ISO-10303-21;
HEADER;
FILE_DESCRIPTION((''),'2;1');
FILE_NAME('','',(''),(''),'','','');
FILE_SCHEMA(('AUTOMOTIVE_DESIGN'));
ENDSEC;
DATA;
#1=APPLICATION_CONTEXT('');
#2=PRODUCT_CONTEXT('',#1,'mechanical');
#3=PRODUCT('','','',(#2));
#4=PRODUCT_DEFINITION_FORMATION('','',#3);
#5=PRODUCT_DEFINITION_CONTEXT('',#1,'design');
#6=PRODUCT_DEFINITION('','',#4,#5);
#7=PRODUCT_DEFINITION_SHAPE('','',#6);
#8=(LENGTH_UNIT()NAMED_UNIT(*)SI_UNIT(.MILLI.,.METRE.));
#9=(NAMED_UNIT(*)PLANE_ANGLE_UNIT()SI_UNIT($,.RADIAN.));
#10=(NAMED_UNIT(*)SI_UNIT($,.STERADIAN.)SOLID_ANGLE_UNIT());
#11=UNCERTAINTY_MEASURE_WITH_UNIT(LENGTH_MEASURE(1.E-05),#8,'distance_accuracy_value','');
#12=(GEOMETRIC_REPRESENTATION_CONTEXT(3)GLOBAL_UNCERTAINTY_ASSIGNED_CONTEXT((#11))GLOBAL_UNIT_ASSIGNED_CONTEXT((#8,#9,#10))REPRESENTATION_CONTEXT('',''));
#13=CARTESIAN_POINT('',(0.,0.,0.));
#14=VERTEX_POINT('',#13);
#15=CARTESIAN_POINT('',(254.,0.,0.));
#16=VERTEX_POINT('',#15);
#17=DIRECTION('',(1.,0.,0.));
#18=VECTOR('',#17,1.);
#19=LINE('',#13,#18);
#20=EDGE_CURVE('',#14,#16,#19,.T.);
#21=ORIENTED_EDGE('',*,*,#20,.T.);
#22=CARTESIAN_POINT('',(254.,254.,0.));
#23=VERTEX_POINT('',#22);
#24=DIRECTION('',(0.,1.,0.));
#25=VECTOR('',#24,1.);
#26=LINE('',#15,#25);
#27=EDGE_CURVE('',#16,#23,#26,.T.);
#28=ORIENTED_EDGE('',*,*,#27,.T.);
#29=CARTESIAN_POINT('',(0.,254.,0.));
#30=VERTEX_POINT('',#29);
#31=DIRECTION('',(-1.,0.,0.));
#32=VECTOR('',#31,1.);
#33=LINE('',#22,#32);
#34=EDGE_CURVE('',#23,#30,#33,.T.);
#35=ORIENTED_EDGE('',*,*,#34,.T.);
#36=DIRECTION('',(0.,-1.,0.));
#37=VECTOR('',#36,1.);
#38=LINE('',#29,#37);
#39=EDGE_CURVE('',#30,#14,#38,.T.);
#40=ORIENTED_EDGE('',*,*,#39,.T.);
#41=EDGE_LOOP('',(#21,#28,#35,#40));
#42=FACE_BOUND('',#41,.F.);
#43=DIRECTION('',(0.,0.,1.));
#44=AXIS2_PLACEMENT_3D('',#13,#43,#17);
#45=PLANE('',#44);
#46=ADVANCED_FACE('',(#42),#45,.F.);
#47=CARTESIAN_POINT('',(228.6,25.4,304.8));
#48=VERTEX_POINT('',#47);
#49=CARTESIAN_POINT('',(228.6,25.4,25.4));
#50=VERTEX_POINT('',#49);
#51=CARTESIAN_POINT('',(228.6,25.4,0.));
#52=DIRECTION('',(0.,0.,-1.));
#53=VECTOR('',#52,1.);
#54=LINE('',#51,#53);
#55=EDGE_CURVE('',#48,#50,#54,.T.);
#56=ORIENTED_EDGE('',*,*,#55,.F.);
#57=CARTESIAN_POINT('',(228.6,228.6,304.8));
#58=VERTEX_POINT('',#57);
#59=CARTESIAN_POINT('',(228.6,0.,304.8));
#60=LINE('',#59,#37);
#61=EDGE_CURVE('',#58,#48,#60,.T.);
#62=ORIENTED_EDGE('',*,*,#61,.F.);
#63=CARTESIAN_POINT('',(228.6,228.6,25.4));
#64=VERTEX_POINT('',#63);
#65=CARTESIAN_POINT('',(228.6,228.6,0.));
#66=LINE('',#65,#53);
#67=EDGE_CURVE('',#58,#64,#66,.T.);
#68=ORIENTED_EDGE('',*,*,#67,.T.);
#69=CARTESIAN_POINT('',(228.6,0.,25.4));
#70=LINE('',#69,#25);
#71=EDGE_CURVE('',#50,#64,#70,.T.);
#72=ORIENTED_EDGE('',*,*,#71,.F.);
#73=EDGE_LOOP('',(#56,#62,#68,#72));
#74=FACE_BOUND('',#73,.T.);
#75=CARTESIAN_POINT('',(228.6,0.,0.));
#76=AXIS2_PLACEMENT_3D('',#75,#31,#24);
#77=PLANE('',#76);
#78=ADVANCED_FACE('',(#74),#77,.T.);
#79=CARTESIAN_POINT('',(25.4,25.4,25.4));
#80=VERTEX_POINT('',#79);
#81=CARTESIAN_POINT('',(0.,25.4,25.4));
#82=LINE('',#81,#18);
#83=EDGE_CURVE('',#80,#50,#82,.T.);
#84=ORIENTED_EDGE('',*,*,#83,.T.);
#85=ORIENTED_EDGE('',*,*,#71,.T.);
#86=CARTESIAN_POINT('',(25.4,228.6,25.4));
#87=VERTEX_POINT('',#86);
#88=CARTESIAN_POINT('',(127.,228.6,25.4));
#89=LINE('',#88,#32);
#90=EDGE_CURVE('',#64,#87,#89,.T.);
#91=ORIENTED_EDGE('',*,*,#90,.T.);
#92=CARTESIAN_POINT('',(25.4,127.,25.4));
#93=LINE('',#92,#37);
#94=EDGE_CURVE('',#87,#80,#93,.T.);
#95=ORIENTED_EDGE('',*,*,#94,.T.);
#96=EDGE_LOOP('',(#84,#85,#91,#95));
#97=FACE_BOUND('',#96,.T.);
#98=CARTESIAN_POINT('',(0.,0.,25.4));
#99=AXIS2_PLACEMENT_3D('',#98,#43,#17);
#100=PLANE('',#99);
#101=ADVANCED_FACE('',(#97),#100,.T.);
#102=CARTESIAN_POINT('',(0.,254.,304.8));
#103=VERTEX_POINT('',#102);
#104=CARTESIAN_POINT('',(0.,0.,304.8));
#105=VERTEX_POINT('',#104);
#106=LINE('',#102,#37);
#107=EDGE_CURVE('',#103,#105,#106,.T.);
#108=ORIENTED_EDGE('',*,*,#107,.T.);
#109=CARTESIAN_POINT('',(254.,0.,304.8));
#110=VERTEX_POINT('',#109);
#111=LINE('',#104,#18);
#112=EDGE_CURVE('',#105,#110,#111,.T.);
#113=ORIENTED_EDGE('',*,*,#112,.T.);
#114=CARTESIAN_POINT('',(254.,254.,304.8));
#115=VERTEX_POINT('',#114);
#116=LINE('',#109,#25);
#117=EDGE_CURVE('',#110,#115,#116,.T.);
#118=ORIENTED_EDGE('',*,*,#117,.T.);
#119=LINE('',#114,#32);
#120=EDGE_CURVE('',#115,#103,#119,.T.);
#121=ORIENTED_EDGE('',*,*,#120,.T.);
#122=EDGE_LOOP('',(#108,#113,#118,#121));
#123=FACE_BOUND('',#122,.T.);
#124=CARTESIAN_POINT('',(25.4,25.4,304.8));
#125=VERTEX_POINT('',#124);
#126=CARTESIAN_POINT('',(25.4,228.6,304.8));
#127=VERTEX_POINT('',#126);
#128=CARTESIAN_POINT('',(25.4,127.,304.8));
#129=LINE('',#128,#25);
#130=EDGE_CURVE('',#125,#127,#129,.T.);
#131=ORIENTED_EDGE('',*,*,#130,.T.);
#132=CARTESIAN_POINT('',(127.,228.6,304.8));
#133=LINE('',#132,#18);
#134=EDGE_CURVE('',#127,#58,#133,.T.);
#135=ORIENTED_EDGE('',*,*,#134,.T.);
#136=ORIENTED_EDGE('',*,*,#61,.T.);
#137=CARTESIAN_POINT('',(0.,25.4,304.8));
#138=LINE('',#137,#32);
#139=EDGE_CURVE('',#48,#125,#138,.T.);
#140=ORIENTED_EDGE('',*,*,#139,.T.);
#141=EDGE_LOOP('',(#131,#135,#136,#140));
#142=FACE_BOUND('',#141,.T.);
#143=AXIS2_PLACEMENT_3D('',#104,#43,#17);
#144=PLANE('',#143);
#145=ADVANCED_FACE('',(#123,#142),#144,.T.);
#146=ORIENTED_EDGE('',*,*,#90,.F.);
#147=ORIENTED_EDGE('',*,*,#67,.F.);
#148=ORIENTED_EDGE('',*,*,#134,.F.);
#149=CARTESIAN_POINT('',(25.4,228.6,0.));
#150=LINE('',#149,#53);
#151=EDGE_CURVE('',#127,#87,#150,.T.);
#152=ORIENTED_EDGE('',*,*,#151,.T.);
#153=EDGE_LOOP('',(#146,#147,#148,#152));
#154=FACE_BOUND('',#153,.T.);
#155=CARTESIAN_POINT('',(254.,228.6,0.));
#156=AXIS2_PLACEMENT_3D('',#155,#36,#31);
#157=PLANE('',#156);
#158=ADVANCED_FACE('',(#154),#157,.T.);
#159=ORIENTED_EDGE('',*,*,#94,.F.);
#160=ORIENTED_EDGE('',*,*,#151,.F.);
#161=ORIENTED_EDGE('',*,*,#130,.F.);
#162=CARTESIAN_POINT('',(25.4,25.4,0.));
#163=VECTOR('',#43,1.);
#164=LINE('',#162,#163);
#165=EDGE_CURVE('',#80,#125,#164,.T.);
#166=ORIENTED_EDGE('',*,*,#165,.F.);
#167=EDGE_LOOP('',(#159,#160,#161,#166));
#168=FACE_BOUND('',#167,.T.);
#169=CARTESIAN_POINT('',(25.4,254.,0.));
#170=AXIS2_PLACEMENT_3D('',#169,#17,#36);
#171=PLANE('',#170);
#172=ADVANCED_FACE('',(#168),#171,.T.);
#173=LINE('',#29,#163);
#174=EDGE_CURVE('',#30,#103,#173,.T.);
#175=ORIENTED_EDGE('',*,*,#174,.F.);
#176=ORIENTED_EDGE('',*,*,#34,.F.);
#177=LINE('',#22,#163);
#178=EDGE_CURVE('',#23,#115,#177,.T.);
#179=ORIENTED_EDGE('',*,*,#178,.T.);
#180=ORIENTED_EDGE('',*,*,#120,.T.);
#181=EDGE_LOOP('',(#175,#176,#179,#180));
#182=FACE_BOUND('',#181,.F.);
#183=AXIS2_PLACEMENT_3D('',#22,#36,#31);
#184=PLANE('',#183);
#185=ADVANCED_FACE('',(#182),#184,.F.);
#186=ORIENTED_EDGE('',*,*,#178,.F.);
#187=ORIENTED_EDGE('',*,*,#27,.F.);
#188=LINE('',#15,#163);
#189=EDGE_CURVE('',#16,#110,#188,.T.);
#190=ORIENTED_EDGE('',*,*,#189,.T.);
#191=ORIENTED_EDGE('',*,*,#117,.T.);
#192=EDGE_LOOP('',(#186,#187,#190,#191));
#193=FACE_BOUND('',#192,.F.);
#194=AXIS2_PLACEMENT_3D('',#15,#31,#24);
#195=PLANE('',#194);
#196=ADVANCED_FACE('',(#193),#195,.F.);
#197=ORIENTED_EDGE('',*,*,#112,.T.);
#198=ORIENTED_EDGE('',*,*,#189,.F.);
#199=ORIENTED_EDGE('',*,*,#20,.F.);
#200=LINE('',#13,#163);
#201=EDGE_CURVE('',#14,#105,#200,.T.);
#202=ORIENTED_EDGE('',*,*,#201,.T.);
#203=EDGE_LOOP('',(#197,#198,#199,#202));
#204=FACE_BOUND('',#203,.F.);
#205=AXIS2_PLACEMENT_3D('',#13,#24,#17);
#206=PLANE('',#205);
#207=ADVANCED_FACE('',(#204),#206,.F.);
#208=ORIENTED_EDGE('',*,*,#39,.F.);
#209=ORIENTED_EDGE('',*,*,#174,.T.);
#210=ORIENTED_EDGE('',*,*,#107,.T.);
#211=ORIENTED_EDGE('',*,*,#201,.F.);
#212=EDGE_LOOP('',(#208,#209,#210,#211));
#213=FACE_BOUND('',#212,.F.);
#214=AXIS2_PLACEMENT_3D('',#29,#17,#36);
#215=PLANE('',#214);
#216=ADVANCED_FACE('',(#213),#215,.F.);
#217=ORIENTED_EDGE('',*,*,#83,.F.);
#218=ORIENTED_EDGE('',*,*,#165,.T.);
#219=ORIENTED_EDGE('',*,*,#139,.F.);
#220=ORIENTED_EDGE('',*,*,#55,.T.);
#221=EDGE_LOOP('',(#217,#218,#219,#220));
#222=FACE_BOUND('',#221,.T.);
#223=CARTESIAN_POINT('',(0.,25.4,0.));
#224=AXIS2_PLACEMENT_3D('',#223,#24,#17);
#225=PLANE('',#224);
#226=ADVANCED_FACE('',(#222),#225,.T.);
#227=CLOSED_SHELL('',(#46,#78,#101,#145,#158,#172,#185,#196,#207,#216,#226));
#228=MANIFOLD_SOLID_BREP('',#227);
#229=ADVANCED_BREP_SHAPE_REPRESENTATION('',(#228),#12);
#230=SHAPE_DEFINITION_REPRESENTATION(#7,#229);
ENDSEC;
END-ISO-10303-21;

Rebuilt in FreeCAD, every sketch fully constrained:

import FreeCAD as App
import Part
import Sketcher

V = App.Vector
Q = App.Units.Quantity


def faces_at(feature, points):
    """Names of the faces that lie closest to the given points."""
    faces = feature.Shape.Faces
    near = lambda p: min(range(len(faces)), key=lambda i: faces[i].distToShape(Part.Vertex(*p))[0])
    return sorted({f"Face{near(p) + 1}" for p in points})

doc = App.newDocument("Part")
body = doc.addObject("PartDesign::Body", "Body")

# Sketch on XY plane
sketch1 = body.newObject("Sketcher::SketchObject", "Sketch")
sketch1.AttachmentSupport = (doc.getObject("XY_Plane"), [""])
sketch1.MapMode = "FlatFace"
sketch1.addGeometry(Part.LineSegment(V(0, 254, 0), V(0, 0, 0)), False)
sketch1.addGeometry(Part.LineSegment(V(0, 0, 0), V(254, 0, 0)), False)
sketch1.addGeometry(Part.LineSegment(V(254, 0, 0), V(254, 254, 0)), False)
sketch1.addGeometry(Part.LineSegment(V(254, 254, 0), V(0, 254, 0)), False)
sketch1.addConstraint(Sketcher.Constraint("Coincident", 0, 2, 1, 1))
sketch1.addConstraint(Sketcher.Constraint("Coincident", 1, 2, 2, 1))
sketch1.addConstraint(Sketcher.Constraint("Coincident", 2, 2, 3, 1))
sketch1.addConstraint(Sketcher.Constraint("Coincident", 3, 2, 0, 1))
sketch1.addConstraint(Sketcher.Constraint("Vertical", 0))
sketch1.addConstraint(Sketcher.Constraint("Horizontal", 1))
sketch1.addConstraint(Sketcher.Constraint("Vertical", 2))
sketch1.addConstraint(Sketcher.Constraint("Horizontal", 3))
sketch1.addConstraint(Sketcher.Constraint("Coincident", 0, 2, -1, 1))
sketch1.addConstraint(Sketcher.Constraint("Equal", 3, 0))
sketch1.addConstraint(Sketcher.Constraint("DistanceX", 1, 1, 1, 2, Q("10 in")))
pad1 = body.newObject("PartDesign::Pad", "Pad")
pad1.Profile = sketch1
pad1.Length = Q("12 in")
doc.recompute()

thickness = body.newObject("PartDesign::Thickness", "Thickness")
thickness.Base = (pad1, faces_at(pad1, [(169.333, 84.667, 304.8)]))
thickness.Value = Q("1 in")
thickness.Reversed = True
thickness.Join = "Intersection"

doc.recompute()
